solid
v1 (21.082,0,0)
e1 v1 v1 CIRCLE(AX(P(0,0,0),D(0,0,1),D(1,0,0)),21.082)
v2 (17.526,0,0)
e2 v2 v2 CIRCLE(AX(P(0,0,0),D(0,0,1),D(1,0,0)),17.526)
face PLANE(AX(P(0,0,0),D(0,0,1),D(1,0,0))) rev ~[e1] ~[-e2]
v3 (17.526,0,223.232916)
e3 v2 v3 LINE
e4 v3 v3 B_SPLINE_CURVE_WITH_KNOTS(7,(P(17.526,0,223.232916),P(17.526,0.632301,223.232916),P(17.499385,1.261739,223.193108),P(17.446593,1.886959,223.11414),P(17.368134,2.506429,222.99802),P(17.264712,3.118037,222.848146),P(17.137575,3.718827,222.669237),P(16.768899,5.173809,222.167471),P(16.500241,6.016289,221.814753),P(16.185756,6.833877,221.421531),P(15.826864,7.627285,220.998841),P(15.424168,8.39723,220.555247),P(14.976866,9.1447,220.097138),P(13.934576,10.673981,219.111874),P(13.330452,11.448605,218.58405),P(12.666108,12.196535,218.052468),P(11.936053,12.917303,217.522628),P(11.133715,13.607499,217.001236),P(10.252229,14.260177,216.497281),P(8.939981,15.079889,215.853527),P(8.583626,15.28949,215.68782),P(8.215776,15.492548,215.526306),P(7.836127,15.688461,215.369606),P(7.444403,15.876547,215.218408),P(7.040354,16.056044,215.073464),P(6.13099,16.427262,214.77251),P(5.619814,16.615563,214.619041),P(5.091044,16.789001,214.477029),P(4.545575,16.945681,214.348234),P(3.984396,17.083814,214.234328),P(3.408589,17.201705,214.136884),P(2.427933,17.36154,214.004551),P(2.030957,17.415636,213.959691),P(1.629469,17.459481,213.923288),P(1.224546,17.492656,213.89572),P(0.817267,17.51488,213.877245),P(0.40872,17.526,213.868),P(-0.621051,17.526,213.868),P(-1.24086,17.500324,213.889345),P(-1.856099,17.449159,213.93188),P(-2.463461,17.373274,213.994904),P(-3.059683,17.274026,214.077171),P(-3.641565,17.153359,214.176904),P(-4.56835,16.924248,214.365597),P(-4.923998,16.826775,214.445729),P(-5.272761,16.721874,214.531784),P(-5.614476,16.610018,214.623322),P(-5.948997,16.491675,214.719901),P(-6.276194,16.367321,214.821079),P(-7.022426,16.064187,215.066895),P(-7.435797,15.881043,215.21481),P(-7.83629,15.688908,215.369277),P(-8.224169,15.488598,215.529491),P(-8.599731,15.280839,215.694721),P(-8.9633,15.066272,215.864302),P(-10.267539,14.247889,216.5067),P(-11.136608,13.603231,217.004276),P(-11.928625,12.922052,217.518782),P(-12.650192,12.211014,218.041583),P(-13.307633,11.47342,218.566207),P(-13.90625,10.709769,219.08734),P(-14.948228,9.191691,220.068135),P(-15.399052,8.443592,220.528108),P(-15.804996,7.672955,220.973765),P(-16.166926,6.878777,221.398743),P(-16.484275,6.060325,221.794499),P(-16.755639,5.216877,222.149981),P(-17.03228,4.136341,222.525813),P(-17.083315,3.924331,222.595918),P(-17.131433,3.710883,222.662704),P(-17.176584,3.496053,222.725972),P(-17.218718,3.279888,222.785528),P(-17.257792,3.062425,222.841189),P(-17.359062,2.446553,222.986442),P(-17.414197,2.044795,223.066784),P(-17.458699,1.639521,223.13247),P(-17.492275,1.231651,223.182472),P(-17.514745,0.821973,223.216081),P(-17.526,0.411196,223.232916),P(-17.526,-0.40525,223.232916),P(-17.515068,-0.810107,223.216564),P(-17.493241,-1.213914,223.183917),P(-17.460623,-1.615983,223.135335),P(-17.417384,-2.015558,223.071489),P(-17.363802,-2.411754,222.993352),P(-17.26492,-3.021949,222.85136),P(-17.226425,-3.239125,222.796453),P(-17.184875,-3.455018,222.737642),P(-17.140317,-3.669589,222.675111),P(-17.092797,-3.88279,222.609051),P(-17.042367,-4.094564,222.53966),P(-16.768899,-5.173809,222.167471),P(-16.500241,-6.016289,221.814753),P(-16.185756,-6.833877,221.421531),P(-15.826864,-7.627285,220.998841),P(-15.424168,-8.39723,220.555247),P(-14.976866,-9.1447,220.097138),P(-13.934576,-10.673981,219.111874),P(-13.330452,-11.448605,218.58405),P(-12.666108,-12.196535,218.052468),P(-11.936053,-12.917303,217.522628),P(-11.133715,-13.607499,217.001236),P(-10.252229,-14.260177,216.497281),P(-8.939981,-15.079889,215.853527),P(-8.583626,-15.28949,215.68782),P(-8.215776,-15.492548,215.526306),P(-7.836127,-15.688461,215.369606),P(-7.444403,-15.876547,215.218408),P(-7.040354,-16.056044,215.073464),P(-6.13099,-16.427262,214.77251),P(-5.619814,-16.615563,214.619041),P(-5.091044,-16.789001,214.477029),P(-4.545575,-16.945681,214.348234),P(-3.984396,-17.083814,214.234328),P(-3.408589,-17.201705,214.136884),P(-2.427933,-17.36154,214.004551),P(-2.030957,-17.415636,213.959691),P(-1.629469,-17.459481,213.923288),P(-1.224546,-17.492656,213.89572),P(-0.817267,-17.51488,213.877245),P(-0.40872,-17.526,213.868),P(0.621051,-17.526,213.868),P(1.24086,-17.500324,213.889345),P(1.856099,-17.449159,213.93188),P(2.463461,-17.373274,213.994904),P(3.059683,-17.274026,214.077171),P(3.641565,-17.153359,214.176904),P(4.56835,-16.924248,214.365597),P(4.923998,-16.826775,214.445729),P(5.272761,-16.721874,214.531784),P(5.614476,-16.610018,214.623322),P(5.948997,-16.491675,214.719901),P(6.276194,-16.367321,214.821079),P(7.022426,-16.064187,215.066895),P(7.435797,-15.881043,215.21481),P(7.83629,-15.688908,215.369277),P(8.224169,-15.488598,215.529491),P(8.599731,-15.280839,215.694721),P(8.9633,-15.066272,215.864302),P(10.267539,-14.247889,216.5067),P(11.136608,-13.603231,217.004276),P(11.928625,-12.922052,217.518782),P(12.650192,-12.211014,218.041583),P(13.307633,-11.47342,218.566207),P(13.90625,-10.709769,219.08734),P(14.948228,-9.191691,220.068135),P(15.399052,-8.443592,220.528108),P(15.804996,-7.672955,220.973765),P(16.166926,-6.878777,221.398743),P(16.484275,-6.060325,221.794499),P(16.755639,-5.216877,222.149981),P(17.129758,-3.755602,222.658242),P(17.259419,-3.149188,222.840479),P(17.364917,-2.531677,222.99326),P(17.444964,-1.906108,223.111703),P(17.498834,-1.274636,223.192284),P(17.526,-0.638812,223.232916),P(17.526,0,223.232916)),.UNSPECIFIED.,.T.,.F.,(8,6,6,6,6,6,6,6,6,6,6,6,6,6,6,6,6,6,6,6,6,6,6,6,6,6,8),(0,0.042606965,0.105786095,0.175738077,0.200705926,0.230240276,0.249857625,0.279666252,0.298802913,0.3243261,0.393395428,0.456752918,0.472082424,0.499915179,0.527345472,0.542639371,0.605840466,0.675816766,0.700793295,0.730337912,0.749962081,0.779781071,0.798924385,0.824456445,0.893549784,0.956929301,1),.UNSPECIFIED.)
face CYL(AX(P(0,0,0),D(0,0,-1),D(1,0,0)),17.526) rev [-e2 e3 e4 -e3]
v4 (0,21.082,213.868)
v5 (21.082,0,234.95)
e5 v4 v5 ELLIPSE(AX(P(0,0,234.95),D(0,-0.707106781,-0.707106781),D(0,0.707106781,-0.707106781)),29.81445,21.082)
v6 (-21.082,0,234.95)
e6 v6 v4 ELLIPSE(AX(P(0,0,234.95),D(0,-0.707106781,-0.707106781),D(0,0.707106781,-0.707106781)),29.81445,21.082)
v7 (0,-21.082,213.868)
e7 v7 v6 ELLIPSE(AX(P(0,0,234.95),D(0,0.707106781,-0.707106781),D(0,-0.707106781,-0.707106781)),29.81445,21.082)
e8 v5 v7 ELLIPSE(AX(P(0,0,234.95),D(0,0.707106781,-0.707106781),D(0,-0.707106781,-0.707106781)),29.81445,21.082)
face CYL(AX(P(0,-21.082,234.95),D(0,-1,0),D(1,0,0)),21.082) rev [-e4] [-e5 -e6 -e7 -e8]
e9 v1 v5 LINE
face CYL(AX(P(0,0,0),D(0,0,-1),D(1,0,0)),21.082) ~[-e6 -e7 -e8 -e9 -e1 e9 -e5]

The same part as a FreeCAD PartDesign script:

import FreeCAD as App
import Part
import Sketcher

V = App.Vector
Q = App.Units.Quantity

doc = App.newDocument("Part")
body = doc.addObject("PartDesign::Body", "Body")

# Sketch on XY plane
sketch1 = body.newObject("Sketcher::SketchObject", "Sketch")
sketch1.AttachmentSupport = (doc.getObject("XY_Plane"), [""])
sketch1.MapMode = "FlatFace"
sketch1.addGeometry([
    Part.Circle(V(0, 0, 0), V(0, 0, 1), 21),
    Part.Circle(V(0, 0, 0), V(0, 0, 1), 18),
], False)
sketch1.addConstraint([
    Sketcher.Constraint("Coincident", 0, 3, -1, 1),
    Sketcher.Constraint("Coincident", 1, 3, -1, 1),
    Sketcher.Constraint("Diameter", 0, Q("1.66 in")),
    Sketcher.Constraint("Diameter", 1, Q("1.38 in")),
])
pad1 = body.newObject("PartDesign::Pad", "Pad")
pad1.Profile = sketch1
pad1.Length = Q("9.25 in")

# Sketch on XZ plane
sketch2 = body.newObject("Sketcher::SketchObject", "Sketch001")
sketch2.AttachmentSupport = (doc.getObject("XZ_Plane"), [""])
sketch2.MapMode = "FlatFace"
sketch2.AttachmentOffset = App.Placement(V(0, 0, 0.83 * 25.4), App.Rotation())
sketch2.addGeometry(Part.Circle(V(0, 235, 0), V(0, 0, 1), 21), False)
sketch2.addConstraint([
    Sketcher.Constraint("PointOnObject", 0, 3, -2),
    Sketcher.Constraint("Diameter", 0, Q("1.66 in")),
    Sketcher.Constraint("DistanceY", -1, 1, 0, 3, Q("9.25 in")),
])
pocket1 = body.newObject("PartDesign::Pocket", "Pocket")
pocket1.Profile = sketch2
pocket1.Length = Q("30 in")

doc.recompute()
